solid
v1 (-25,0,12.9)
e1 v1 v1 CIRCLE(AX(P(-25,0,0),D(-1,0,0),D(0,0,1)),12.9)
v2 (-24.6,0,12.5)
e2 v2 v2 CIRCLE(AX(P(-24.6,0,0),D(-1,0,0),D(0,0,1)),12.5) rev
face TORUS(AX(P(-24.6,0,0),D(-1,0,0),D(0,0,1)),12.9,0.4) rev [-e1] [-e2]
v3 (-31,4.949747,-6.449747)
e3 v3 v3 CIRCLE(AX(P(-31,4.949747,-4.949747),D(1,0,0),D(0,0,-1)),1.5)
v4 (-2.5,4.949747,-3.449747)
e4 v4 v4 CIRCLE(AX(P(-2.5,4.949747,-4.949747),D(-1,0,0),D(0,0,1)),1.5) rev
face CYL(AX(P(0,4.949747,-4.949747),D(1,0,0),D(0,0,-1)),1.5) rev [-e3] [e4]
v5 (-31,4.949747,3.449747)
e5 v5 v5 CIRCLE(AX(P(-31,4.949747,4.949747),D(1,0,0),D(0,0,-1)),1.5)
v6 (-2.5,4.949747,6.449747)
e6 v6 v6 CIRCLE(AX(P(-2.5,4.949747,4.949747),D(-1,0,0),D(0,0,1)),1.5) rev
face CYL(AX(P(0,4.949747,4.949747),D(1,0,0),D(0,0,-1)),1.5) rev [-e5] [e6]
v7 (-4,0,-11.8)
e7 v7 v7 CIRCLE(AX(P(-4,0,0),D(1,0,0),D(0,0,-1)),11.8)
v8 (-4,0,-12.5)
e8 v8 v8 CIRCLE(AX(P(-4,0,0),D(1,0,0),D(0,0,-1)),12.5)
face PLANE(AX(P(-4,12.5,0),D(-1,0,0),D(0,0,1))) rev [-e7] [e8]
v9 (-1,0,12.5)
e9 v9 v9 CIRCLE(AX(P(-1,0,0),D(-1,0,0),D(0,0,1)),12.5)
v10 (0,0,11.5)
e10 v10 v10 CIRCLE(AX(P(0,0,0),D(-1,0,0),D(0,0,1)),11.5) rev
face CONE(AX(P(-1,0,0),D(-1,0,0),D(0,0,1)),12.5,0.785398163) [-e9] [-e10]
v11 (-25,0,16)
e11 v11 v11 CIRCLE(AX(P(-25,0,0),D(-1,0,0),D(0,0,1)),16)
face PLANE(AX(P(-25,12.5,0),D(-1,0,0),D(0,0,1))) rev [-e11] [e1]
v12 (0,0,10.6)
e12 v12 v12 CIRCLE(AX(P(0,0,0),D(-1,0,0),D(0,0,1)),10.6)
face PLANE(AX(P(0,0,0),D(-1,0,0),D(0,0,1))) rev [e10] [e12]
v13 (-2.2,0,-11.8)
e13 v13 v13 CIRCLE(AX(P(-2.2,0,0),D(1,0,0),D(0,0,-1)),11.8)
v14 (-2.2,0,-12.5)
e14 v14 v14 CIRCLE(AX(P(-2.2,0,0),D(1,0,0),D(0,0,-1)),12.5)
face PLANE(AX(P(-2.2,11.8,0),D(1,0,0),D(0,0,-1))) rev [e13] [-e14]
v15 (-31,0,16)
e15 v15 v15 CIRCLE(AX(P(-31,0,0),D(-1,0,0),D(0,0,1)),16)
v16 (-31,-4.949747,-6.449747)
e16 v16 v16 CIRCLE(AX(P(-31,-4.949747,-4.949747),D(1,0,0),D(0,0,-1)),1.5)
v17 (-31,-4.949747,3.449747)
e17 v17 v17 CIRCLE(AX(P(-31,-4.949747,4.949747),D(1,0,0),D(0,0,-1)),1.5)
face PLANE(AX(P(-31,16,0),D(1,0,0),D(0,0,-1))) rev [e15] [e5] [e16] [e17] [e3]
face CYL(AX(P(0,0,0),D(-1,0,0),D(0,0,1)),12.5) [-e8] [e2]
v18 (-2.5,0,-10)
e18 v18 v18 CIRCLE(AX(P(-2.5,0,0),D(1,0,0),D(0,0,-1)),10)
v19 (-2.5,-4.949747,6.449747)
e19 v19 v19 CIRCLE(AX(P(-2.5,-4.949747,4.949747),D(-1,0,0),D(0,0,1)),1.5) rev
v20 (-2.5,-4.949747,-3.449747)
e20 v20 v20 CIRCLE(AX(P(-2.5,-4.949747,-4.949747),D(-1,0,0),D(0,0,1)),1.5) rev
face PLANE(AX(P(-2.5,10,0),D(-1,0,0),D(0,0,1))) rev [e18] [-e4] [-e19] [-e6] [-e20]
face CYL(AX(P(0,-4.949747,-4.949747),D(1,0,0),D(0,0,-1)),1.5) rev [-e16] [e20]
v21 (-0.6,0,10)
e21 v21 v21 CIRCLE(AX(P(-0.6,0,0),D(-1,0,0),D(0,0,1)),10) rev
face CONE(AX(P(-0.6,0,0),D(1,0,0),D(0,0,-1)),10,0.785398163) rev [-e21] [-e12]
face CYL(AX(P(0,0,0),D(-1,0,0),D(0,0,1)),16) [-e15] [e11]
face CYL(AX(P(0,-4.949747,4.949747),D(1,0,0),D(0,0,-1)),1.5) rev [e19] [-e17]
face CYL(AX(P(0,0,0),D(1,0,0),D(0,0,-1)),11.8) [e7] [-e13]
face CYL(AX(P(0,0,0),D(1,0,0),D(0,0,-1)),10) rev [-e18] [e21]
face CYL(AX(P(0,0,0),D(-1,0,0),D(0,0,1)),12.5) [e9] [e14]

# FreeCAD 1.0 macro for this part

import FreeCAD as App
import Part
import Sketcher


def edges_at(feature, points):
    """Names of the edges that pass closest to the given points."""
    edges = feature.Shape.Edges
    near = lambda p: min(range(len(edges)), key=lambda i: edges[i].distToShape(Part.Vertex(*p))[0])
    return sorted({f"Edge{near(p) + 1}" for p in points})


def add_polygon(sketch, points):
    """Adds a closed chain of lines whose ends are joined by coincident constraints."""
    first, n = sketch.GeometryCount, len(points)
    for a, b in zip(points, points[1:] + points[:1]):
        sketch.addGeometry(Part.LineSegment(App.Vector(*a, 0), App.Vector(*b, 0)), False)
    for i in range(n):
        sketch.addConstraint(Sketcher.Constraint("Coincident", first + i, 2, first + (i + 1) % n, 1))

doc = App.newDocument("Part")
body = doc.addObject("PartDesign::Body", "Body")

# Sketch on XY plane
sketch1 = body.newObject("Sketcher::SketchObject", "Sketch")
sketch1.AttachmentSupport = (doc.getObject("XY_Plane"), [""])
sketch1.MapMode = "FlatFace"
add_polygon(sketch1, [(0, 0), (0, 12.5), (-25, 12.5), (-25, 16), (-31, 16), (-31, 0)])  # lines 0-5
sketch1.addConstraint([
    Sketcher.Constraint("Vertical", 0),
    Sketcher.Constraint("Horizontal", 1),
    Sketcher.Constraint("Vertical", 2),
    Sketcher.Constraint("Horizontal", 3),
    Sketcher.Constraint("Vertical", 4),
    Sketcher.Constraint("Horizontal", 5),
    Sketcher.Constraint("Coincident", 5, 2, -1, 1),
    Sketcher.Constraint("DistanceX", 1, 2, 1, 1, 25.0),
    Sketcher.Constraint("DistanceX", 3, 2, 3, 1, 6.0),
    Sketcher.Constraint("DistanceY", 4, 2, 4, 1, 16.0),
    Sketcher.Constraint("DistanceY", 0, 1, 0, 2, 12.5),
])
revolution = body.newObject("PartDesign::Revolution", "Revolution")
revolution.Profile = sketch1
revolution.ReferenceAxis = (sketch1, ["H_Axis"])
revolution.Angle = 360

# Sketch on XY plane
sketch2 = body.newObject("Sketcher::SketchObject", "Sketch001")
sketch2.AttachmentSupport = (doc.getObject("XY_Plane"), [""])
sketch2.MapMode = "FlatFace"
add_polygon(sketch2, [(-4, 12.5), (-4, 11.8), (-2.2, 11.8), (-2.2, 12.5)])  # lines 0-3
sketch2.addConstraint([
    Sketcher.Constraint("Vertical", 0),
    Sketcher.Constraint("Horizontal", 1),
    Sketcher.Constraint("Vertical", 2),
    Sketcher.Constraint("Horizontal", 3),
    Sketcher.Constraint("DistanceX", 1, 1, 1, 2, 1.8),
    Sketcher.Constraint("DistanceY", 0, 2, 0, 1, 0.7),
    Sketcher.Constraint("DistanceX", 0, 2, -1, 1, 4.0),
    Sketcher.Constraint("DistanceY", -1, 1, 0, 2, 11.8),
])
groove = body.newObject("PartDesign::Groove", "Groove")
groove.Profile = sketch2
groove.ReferenceAxis = (sketch2, ["H_Axis"])
groove.Angle = 360
doc.recompute()

chamfer = body.newObject("PartDesign::Chamfer", "Chamfer")
chamfer.Base = (groove, edges_at(groove, [(0, 0, -12.5)]))
chamfer.Size = 1
doc.recompute()

fillet = body.newObject("PartDesign::Fillet", "Fillet")
fillet.Base = (chamfer, edges_at(chamfer, [(-25, 0, -12.5)]))
fillet.Radius = 0.4

# Sketch on YZ plane
sketch3 = body.newObject("Sketcher::SketchObject", "Sketch002")
sketch3.AttachmentSupport = (doc.getObject("YZ_Plane"), [""])
sketch3.MapMode = "FlatFace"
sketch3.addGeometry(Part.Circle(App.Vector(4.949747, -4.949747, 0), App.Vector(0, 0, 1), 1.5), False)
sketch3.addConstraint([
    Sketcher.Constraint("Diameter", 0, 3.0),
    Sketcher.Constraint("DistanceX", -1, 1, 0, 3, 4.949747),
    Sketcher.Constraint("DistanceY", 0, 3, -1, 1, 4.949747),
])
doc.recompute()
hole = body.newObject("PartDesign::Hole", "Hole")
hole.Profile = sketch3
hole.ThreadType = "None"
hole.Diameter = 3
hole.DepthType = "ThroughAll"
doc.recompute()

polarpattern = body.newObject("PartDesign::PolarPattern", "PolarPattern")
polarpattern.Originals = [hole]
polarpattern.Axis = (doc.getObject("X_Axis"), [""])
polarpattern.Angle = 360
polarpattern.Occurrences = 4
body.Tip = polarpattern

# Sketch on XY plane
sketch4 = body.newObject("Sketcher::SketchObject", "Sketch003")
sketch4.AttachmentSupport = (doc.getObject("XY_Plane"), [""])
sketch4.MapMode = "FlatFace"
add_polygon(sketch4, [(-2.5, 10), (-2.5, 0), (0, 0), (0, 10)])  # lines 0-3
sketch4.addConstraint([
    Sketcher.Constraint("Vertical", 0),
    Sketcher.Constraint("Horizontal", 1),
    Sketcher.Constraint("Vertical", 2),
    Sketcher.Constraint("Horizontal", 3),
    Sketcher.Constraint("Coincident", 1, 2, -1, 1),
    Sketcher.Constraint("DistanceY", 0, 2, 0, 1, 10.0),
    Sketcher.Constraint("DistanceX", 1, 1, 1, 2, 2.5),
])
groove2 = body.newObject("PartDesign::Groove", "Groove001")
groove2.Profile = sketch4
groove2.ReferenceAxis = (sketch4, ["H_Axis"])
groove2.Angle = 360
doc.recompute()

chamfer2 = body.newObject("PartDesign::Chamfer", "Chamfer001")
chamfer2.Base = (groove2, edges_at(groove2, [(0, 0, 10)]))
chamfer2.Size = 0.6

doc.recompute()
